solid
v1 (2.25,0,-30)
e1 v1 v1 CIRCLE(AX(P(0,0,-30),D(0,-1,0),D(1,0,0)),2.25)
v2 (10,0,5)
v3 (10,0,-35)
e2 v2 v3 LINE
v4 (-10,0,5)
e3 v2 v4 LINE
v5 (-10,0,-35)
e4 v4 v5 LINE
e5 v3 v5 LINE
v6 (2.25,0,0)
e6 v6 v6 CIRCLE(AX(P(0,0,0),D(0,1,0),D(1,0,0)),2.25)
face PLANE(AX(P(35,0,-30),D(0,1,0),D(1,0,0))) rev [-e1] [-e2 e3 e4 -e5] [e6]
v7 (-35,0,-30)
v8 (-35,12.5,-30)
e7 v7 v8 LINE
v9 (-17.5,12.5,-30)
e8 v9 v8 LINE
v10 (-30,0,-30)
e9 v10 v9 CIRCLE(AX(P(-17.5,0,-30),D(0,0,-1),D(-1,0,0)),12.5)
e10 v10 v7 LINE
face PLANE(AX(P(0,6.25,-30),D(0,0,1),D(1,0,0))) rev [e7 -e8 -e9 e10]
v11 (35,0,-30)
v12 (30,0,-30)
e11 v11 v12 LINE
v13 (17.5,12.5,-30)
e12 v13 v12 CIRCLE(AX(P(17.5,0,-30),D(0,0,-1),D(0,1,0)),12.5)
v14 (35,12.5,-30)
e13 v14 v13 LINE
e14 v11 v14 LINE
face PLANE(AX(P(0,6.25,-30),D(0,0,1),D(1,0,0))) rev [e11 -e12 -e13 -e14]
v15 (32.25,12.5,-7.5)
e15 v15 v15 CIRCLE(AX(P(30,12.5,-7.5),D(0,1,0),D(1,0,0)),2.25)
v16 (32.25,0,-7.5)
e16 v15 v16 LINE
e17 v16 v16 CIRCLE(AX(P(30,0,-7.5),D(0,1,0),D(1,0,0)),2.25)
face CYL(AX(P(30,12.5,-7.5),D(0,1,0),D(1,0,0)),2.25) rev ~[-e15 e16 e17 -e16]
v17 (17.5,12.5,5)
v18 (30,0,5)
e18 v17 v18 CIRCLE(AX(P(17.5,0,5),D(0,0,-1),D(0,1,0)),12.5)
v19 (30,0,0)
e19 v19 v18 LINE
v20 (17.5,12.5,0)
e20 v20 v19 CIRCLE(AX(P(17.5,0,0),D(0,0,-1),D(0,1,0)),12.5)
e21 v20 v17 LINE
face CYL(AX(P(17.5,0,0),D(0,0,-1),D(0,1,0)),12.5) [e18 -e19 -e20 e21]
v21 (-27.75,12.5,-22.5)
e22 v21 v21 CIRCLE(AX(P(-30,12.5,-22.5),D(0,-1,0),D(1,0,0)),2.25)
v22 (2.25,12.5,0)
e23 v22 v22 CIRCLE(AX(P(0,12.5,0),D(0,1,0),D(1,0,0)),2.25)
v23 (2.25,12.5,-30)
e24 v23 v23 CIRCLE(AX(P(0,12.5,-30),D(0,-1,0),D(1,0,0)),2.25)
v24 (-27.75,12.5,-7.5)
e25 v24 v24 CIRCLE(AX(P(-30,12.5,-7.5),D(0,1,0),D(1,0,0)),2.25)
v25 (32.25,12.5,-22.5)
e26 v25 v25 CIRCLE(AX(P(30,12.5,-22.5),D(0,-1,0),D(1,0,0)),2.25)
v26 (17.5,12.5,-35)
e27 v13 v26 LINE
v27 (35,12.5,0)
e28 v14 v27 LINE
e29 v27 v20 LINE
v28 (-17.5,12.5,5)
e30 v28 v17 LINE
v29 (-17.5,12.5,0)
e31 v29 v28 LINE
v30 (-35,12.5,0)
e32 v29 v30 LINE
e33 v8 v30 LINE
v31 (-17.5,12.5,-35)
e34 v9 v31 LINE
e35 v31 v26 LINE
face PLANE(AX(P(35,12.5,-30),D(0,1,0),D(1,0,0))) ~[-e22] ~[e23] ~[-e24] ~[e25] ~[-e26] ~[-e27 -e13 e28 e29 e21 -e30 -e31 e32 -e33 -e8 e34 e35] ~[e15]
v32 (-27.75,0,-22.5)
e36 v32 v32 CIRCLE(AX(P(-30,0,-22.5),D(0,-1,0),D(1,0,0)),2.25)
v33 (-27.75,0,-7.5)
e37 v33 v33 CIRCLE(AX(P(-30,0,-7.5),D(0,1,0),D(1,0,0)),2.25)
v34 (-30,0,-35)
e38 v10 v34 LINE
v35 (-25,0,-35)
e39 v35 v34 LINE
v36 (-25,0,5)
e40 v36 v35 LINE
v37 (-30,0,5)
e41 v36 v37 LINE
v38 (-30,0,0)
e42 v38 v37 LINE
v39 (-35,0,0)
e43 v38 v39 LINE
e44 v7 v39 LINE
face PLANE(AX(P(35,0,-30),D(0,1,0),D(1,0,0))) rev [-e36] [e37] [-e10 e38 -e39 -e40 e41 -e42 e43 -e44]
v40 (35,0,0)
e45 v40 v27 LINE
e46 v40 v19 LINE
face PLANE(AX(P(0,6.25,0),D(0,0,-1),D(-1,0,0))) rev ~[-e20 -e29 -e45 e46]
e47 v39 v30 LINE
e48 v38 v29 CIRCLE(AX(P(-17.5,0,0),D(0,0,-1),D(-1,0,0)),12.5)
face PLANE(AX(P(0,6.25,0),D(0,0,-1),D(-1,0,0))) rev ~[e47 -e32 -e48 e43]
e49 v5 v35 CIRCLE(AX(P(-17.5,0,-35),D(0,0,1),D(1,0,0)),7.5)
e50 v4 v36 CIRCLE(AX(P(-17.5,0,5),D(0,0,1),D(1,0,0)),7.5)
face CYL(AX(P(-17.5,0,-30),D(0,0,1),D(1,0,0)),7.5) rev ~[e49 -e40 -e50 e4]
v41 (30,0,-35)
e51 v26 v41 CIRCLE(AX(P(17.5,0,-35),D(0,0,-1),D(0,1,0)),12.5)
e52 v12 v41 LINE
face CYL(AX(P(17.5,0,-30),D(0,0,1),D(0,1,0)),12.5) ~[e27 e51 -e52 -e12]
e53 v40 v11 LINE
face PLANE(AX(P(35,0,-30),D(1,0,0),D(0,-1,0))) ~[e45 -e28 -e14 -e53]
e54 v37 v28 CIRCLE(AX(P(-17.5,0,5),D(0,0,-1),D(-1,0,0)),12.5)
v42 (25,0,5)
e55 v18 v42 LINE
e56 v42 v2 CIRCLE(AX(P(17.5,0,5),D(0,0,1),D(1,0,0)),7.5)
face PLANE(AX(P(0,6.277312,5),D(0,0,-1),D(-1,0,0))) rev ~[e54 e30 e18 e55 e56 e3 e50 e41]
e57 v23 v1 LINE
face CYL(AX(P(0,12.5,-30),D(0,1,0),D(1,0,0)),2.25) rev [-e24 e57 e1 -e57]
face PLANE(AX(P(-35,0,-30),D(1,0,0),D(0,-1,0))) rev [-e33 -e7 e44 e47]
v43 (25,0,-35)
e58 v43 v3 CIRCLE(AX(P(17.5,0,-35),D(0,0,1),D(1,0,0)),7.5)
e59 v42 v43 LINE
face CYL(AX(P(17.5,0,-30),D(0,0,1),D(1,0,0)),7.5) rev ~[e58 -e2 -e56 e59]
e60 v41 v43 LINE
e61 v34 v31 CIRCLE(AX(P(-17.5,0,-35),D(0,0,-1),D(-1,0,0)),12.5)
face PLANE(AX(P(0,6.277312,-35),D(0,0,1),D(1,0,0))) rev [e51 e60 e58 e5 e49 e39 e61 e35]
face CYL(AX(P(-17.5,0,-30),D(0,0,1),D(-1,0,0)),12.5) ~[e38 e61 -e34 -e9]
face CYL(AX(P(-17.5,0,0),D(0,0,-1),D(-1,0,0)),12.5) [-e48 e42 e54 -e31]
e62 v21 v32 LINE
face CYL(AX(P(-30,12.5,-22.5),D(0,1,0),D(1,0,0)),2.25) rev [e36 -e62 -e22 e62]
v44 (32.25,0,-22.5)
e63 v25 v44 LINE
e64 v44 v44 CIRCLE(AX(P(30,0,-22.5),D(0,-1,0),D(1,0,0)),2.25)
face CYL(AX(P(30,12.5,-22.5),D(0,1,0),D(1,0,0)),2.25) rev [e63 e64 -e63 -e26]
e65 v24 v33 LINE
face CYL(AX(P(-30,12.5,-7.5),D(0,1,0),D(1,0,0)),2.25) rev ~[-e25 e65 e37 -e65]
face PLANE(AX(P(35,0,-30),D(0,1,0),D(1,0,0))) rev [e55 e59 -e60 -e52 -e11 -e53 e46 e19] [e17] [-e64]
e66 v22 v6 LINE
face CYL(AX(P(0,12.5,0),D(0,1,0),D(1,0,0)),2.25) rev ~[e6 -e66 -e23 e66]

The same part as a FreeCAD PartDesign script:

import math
import FreeCAD as App
import Part
import Sketcher

doc = App.newDocument("Part")
params = doc.addObject("Spreadsheet::Sheet", "Params")
for row, (alias, value) in enumerate([
    ("sketch1_radius", "12.5 mm"),
    ("sketch1_radius2", "7.5 mm"),
    ("sketch1_width", "35 mm"),
    ("pad1_length", "5 mm"),
    ("sketch2_width", "70 mm"),
    ("sketch2_height", "12.5 mm"),
    ("pad2_length", "15 mm"),
    ("sketch3_diameter", "4.5 mm"),
    ("pocket1_length", "15 mm"),
    ("sketch4_radius", "7.5 mm"),
    ("pocket2_length", "15 mm"),
    ("sketch5_radius", "7.5 mm"),
    ("pocket3_length", "15 mm"),
], start=1):
    params.set(f"A{row}", alias)
    params.set(f"B{row}", "=" + value)
    params.setAlias(f"B{row}", alias)

body = doc.addObject("PartDesign::Body", "Body")

# Sketch on XY plane
sketch1 = body.newObject("Sketcher::SketchObject", "Sketch")
sketch1.AttachmentSupport = (doc.getObject("XY_Plane"), [""])
sketch1.MapMode = "FlatFace"
sketch1.addGeometry([
    Part.LineSegment(App.Vector(18, 12, 0), App.Vector(-18, 12, 0)),  # 0
    Part.ArcOfCircle(Part.Circle(App.Vector(-18, 0, 0), App.Vector(0, 0, 1), 12), math.radians(90), math.radians(180)),  # 1
    Part.LineSegment(App.Vector(-30, 0, 0), App.Vector(-25, 0, 0)),  # 2
    Part.ArcOfCircle(Part.Circle(App.Vector(-18, 0, 0), App.Vector(0, 0, 1), 8), math.radians(0), math.radians(180)),  # 3
    Part.LineSegment(App.Vector(-10, 0, 0), App.Vector(10, 0, 0)),  # 4
    Part.ArcOfCircle(Part.Circle(App.Vector(18, 0, 0), App.Vector(0, 0, 1), 8), math.radians(0), math.radians(180)),  # 5
    Part.LineSegment(App.Vector(25, 0, 0), App.Vector(30, 0, 0)),  # 6
    Part.ArcOfCircle(Part.Circle(App.Vector(18, 0, 0), App.Vector(0, 0, 1), 12), math.radians(0), math.radians(90)),  # 7
], False)
sketch1.addConstraint([
    Sketcher.Constraint("Tangent", 0, 2, 1, 1),
    Sketcher.Constraint("Coincident", 1, 2, 2, 1),
    Sketcher.Constraint("Coincident", 2, 2, 3, 2),
    Sketcher.Constraint("Coincident", 3, 1, 4, 1),
    Sketcher.Constraint("Coincident", 4, 2, 5, 2),
    Sketcher.Constraint("Coincident", 5, 1, 6, 1),
    Sketcher.Constraint("Coincident", 6, 2, 7, 1),
    Sketcher.Constraint("Tangent", 7, 2, 0, 1),
    Sketcher.Constraint("Horizontal", 0),
    Sketcher.Constraint("Horizontal", 2),
    Sketcher.Constraint("Horizontal", 4),
    Sketcher.Constraint("Horizontal", 6),
    Sketcher.Constraint("Coincident", 3, 3, 1, 3),
    Sketcher.Constraint("Coincident", 7, 3, 5, 3),
    Sketcher.Constraint("Equal", 3, 5),
    Sketcher.Constraint("Equal", 1, 7),
    Sketcher.Constraint("Symmetric", 1, 3, 5, 3, -1, 1),
    Sketcher.Constraint("PointOnObject", 1, 2, -1),
    Sketcher.Constraint("PointOnObject", 3, 1, -1),
    Sketcher.Constraint("PointOnObject", 5, 1, -1),
    Sketcher.Constraint("Radius", 1, 12.5),
    Sketcher.Constraint("Radius", 3, 7.5),
    Sketcher.Constraint("DistanceX", 0, 2, 0, 1, 35.0),
])
sketch1.setExpression("Constraints[20]", "Params.sketch1_radius")
sketch1.setExpression("Constraints[21]", "Params.sketch1_radius2")
sketch1.setExpression("Constraints[22]", "Params.sketch1_width")
pad1 = body.newObject("PartDesign::Pad", "Pad")
pad1.Profile = sketch1
pad1.setExpression("Length", "Params.pad1_length")

# Sketch on XY plane
sketch2 = body.newObject("Sketcher::SketchObject", "Sketch001")
sketch2.AttachmentSupport = (doc.getObject("XY_Plane"), [""])
sketch2.MapMode = "FlatFace"
sketch2.addGeometry([
    Part.LineSegment(App.Vector(35, 12, 0), App.Vector(35, 0, 0)),
    Part.LineSegment(App.Vector(35, 0, 0), App.Vector(-35, 0, 0)),
    Part.LineSegment(App.Vector(-35, 0, 0), App.Vector(-35, 12, 0)),
    Part.LineSegment(App.Vector(-35, 12, 0), App.Vector(35, 12, 0)),
], False)
sketch2.addConstraint([
    Sketcher.Constraint("Coincident", 0, 2, 1, 1),
    Sketcher.Constraint("Coincident", 1, 2, 2, 1),
    Sketcher.Constraint("Coincident", 2, 2, 3, 1),
    Sketcher.Constraint("Coincident", 3, 2, 0, 1),
    Sketcher.Constraint("Vertical", 0),
    Sketcher.Constraint("Horizontal", 1),
    Sketcher.Constraint("Vertical", 2),
    Sketcher.Constraint("Horizontal", 3),
    Sketcher.Constraint("Symmetric", 0, 2, 1, 2, -1, 1),
    Sketcher.Constraint("DistanceX", 1, 2, 1, 1, 70.0),
    Sketcher.Constraint("DistanceY", 0, 2, 0, 1, 12.5),
])
sketch2.setExpression("Constraints[9]", "Params.sketch2_width")
sketch2.setExpression("Constraints[10]", "Params.sketch2_height")
pad2 = body.newObject("PartDesign::Pad", "Pad001")
pad2.Profile = sketch2
pad2.setExpression("Length", "Params.pad2_length")
pad2.Reversed = True

# Sketch on XZ plane
sketch3 = body.newObject("Sketcher::SketchObject", "Sketch002")
sketch3.AttachmentSupport = (doc.getObject("XZ_Plane"), [""])
sketch3.MapMode = "FlatFace"
sketch3.AttachmentOffset = App.Placement(App.Vector(0, 0, -12.5), App.Rotation())
sketch3.addGeometry([
    Part.Circle(App.Vector(0, 0, 0), App.Vector(0, 0, 1), 2.2),
    Part.Circle(App.Vector(30, -7.5, 0), App.Vector(0, 0, 1), 2.2),
    Part.Circle(App.Vector(-30, -7.5, 0), App.Vector(0, 0, 1), 2.2),
], False)
sketch3.addConstraint([
    Sketcher.Constraint("Coincident", 0, 3, -1, 1),
    Sketcher.Constraint("Equal", 0, 1),
    Sketcher.Constraint("Equal", 1, 2),
    Sketcher.Constraint("Symmetric", 1, 3, 2, 3, -2),
    Sketcher.Constraint("Diameter", 0, 4.5),
    Sketcher.Constraint("DistanceX", -1, 1, 1, 3, 30.0),
    Sketcher.Constraint("DistanceY", 1, 3, -1, 1, 7.5),
])
sketch3.setExpression("Constraints[4]", "Params.sketch3_diameter")
pocket1 = body.newObject("PartDesign::Pocket", "Pocket")
pocket1.Profile = sketch3
pocket1.setExpression("Length", "Params.pocket1_length")
pocket1.Reversed = True

# Sketch on XY plane
sketch4 = body.newObject("Sketcher::SketchObject", "Sketch003")
sketch4.AttachmentSupport = (doc.getObject("XY_Plane"), [""])
sketch4.MapMode = "FlatFace"
sketch4.addGeometry([
    Part.LineSegment(App.Vector(-25, 0, 0), App.Vector(-10, 0, 0)),
    Part.ArcOfCircle(Part.Circle(App.Vector(-18, 0, 0), App.Vector(0, 0, 1), 8), math.radians(0), math.radians(180)),
], False)
sketch4.addConstraint([
    Sketcher.Constraint("Coincident", 0, 1, 1, 2),
    Sketcher.Constraint("Coincident", 1, 1, 0, 2),
    Sketcher.Constraint("Horizontal", 0),
    Sketcher.Constraint("PointOnObject", 1, 3, -1),
    Sketcher.Constraint("PointOnObject", 0, 1, -1),
    Sketcher.Constraint("Radius", 1, 7.5),
    Sketcher.Constraint("DistanceX", 0, 1, -1, 1, 25.0),
])
sketch4.setExpression("Constraints[5]", "Params.sketch4_radius")
pocket2 = body.newObject("PartDesign::Pocket", "Pocket001")
pocket2.Profile = sketch4
pocket2.setExpression("Length", "Params.pocket2_length")

# Sketch on XY plane
sketch5 = body.newObject("Sketcher::SketchObject", "Sketch004")
sketch5.AttachmentSupport = (doc.getObject("XY_Plane"), [""])
sketch5.MapMode = "FlatFace"
sketch5.addGeometry([
    Part.LineSegment(App.Vector(10, 0, 0), App.Vector(25, 0, 0)),
    Part.ArcOfCircle(Part.Circle(App.Vector(18, 0, 0), App.Vector(0, 0, 1), 8), math.radians(0), math.radians(180)),
], False)
sketch5.addConstraint([
    Sketcher.Constraint("Coincident", 0, 1, 1, 2),
    Sketcher.Constraint("Coincident", 1, 1, 0, 2),
    Sketcher.Constraint("Horizontal", 0),
    Sketcher.Constraint("PointOnObject", 1, 3, -1),
    Sketcher.Constraint("PointOnObject", 0, 1, -1),
    Sketcher.Constraint("Radius", 1, 7.5),
    Sketcher.Constraint("DistanceX", -1, 1, 0, 1, 10.0),
])
sketch5.setExpression("Constraints[5]", "Params.sketch5_radius")
pocket3 = body.newObject("PartDesign::Pocket", "Pocket002")
pocket3.Profile = sketch5
pocket3.setExpression("Length", "Params.pocket3_length")
body2 = doc.addObject("PartDesign::Body", "Body001")
doc.recompute()

body2.BaseFeature = body
doc.recompute()

mirroring = doc.addObject("Part::Mirroring", "Mirroring")
mirroring.Source = body
mirroring.Base = App.Vector(0, 0, -15)
mirroring.Normal = App.Vector(0, 0, -1)
body3 = doc.addObject("PartDesign::Body", "Body002")
body3.BaseFeature = mirroring
boolean = body2.newObject("PartDesign::Boolean", "Boolean")
boolean.Type = "Fuse"
boolean.addObjects([body3])
doc.recompute()
mirroring.Visibility = False

doc.recompute()
